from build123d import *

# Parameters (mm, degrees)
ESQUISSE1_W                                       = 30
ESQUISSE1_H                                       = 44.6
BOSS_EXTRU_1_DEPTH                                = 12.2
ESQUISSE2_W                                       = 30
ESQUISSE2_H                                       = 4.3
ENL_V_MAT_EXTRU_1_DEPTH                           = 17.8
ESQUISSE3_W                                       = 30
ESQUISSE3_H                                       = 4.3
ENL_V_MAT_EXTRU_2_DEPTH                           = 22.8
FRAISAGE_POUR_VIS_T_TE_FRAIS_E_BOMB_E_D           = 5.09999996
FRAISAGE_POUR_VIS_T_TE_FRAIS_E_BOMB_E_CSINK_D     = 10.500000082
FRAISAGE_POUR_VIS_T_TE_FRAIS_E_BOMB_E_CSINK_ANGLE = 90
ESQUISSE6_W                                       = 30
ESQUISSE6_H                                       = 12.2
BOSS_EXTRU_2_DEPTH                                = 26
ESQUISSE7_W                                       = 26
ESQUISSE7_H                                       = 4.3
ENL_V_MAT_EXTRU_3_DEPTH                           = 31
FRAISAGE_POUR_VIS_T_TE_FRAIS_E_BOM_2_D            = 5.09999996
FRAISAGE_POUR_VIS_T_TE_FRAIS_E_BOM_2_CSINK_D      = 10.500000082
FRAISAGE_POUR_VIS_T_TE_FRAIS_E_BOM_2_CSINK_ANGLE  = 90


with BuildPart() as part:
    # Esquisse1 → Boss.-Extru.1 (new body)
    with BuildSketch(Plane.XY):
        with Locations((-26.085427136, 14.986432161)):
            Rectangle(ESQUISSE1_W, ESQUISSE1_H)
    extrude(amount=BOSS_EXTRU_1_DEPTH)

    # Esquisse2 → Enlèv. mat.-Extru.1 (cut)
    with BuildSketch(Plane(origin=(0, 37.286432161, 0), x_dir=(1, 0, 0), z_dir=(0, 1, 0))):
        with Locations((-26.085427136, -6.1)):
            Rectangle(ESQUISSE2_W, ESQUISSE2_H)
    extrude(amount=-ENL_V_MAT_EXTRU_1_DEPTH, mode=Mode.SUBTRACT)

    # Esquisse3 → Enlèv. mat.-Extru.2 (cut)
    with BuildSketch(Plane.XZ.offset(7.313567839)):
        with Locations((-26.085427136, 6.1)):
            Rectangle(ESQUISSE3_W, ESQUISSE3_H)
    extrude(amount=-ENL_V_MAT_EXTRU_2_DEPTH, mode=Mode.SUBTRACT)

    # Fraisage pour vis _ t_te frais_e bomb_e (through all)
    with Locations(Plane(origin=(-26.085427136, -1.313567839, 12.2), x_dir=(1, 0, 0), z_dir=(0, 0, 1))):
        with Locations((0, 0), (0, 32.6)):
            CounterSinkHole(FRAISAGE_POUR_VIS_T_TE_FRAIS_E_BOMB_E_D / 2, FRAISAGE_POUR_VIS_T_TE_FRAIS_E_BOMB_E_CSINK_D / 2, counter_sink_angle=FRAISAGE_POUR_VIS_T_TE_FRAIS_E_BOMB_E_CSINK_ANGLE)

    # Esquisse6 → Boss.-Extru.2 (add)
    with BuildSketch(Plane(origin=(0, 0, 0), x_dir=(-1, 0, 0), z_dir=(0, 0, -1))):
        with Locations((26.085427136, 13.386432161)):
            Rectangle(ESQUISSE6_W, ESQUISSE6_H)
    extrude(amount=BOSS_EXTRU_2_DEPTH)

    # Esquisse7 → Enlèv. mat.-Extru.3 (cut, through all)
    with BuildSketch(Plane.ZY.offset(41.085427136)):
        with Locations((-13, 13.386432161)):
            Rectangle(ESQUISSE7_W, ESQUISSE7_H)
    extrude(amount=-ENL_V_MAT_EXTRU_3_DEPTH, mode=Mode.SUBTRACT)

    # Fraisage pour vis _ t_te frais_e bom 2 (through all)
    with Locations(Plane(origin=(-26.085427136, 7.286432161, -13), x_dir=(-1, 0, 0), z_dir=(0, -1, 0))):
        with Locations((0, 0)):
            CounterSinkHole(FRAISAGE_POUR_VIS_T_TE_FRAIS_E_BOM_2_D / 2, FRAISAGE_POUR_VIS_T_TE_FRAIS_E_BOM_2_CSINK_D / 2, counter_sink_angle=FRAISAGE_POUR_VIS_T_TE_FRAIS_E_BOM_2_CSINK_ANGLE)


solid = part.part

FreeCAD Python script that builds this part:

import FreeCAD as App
import Part
import Sketcher
from FreeCAD import Vector

doc = App.newDocument("Part")
body = doc.addObject("PartDesign::Body", "Body")

# Sketch on XY plane
sketch1 = body.newObject("Sketcher::SketchObject", "Sketch")
sketch1.AttachmentSupport = (doc.getObject("XY_Plane"), [""])
sketch1.MapMode = "FlatFace"
sketch1.addGeometry([
    Part.LineSegment(Vector(-41, 37, 0), Vector(-41, -7, 0)),
    Part.LineSegment(Vector(-41, -7, 0), Vector(-11, -7, 0)),
    Part.LineSegment(Vector(-11, -7, 0), Vector(-11, 37, 0)),
    Part.LineSegment(Vector(-11, 37, 0), Vector(-41, 37, 0)),
], False)
sketch1.addConstraint([
    Sketcher.Constraint("Coincident", 0, 2, 1, 1),
    Sketcher.Constraint("Coincident", 1, 2, 2, 1),
    Sketcher.Constraint("Coincident", 2, 2, 3, 1),
    Sketcher.Constraint("Coincident", 3, 2, 0, 1),
    Sketcher.Constraint("Vertical", 0),
    Sketcher.Constraint("Horizontal", 1),
    Sketcher.Constraint("Vertical", 2),
    Sketcher.Constraint("Horizontal", 3),
    Sketcher.Constraint("DistanceX", 1, 1, 1, 2, 30.0),
    Sketcher.Constraint("DistanceY", 0, 2, 0, 1, 44.6),
    Sketcher.Constraint("DistanceX", 0, 2, -1, 1, 41.085427),
    Sketcher.Constraint("DistanceY", 0, 2, -1, 1, 7.313568),
])
pad1 = body.newObject("PartDesign::Pad", "Pad")
pad1.Profile = sketch1
pad1.Length = 12.2

# Sketch on XZ plane
sketch2 = body.newObject("Sketcher::SketchObject", "Sketch001")
sketch2.AttachmentSupport = (doc.getObject("XZ_Plane"), [""])
sketch2.MapMode = "FlatFace"
sketch2.AttachmentOffset = App.Placement(Vector(0, 0, -37.286432), App.Rotation())
sketch2.addGeometry([
    Part.LineSegment(Vector(-41.1, 4, 0), Vector(-41.1, 8.2, 0)),
    Part.LineSegment(Vector(-41.1, 8.2, 0), Vector(-11.1, 8.2, 0)),
    Part.LineSegment(Vector(-11.1, 8.2, 0), Vector(-11.1, 4, 0)),
    Part.LineSegment(Vector(-11.1, 4, 0), Vector(-41.1, 4, 0)),
], False)
sketch2.addConstraint([
    Sketcher.Constraint("Coincident", 0, 2, 1, 1),
    Sketcher.Constraint("Coincident", 1, 2, 2, 1),
    Sketcher.Constraint("Coincident", 2, 2, 3, 1),
    Sketcher.Constraint("Coincident", 3, 2, 0, 1),
    Sketcher.Constraint("Vertical", 0),
    Sketcher.Constraint("Horizontal", 1),
    Sketcher.Constraint("Vertical", 2),
    Sketcher.Constraint("Horizontal", 3),
    Sketcher.Constraint("DistanceX", 1, 1, 1, 2, 30.0),
    Sketcher.Constraint("DistanceY", 0, 1, 0, 2, 4.3),
    Sketcher.Constraint("DistanceY", -1, 1, 0, 2, 8.25),
    Sketcher.Constraint("DistanceX", 0, 2, -1, 1, 41.085427),
])
pocket1 = body.newObject("PartDesign::Pocket", "Pocket")
pocket1.Profile = sketch2
pocket1.Length = 17.8
pocket1.Reversed = True

# Sketch on XZ plane
sketch3 = body.newObject("Sketcher::SketchObject", "Sketch002")
sketch3.AttachmentSupport = (doc.getObject("XZ_Plane"), [""])
sketch3.MapMode = "FlatFace"
sketch3.AttachmentOffset = App.Placement(Vector(0, 0, 7.313568), App.Rotation())
sketch3.addGeometry([
    Part.LineSegment(Vector(-41.1, 8.2, 0), Vector(-41.1, 4, 0)),
    Part.LineSegment(Vector(-41.1, 4, 0), Vector(-11.1, 4, 0)),
    Part.LineSegment(Vector(-11.1, 4, 0), Vector(-11.1, 8.2, 0)),
    Part.LineSegment(Vector(-11.1, 8.2, 0), Vector(-41.1, 8.2, 0)),
], False)
sketch3.addConstraint([
    Sketcher.Constraint("Coincident", 0, 2, 1, 1),
    Sketcher.Constraint("Coincident", 1, 2, 2, 1),
    Sketcher.Constraint("Coincident", 2, 2, 3, 1),
    Sketcher.Constraint("Coincident", 3, 2, 0, 1),
    Sketcher.Constraint("Vertical", 0),
    Sketcher.Constraint("Horizontal", 1),
    Sketcher.Constraint("Vertical", 2),
    Sketcher.Constraint("Horizontal", 3),
    Sketcher.Constraint("DistanceX", 1, 1, 1, 2, 30.0),
    Sketcher.Constraint("DistanceY", 0, 2, 0, 1, 4.3),
    Sketcher.Constraint("DistanceY", -1, 1, 0, 2, 3.95),
    Sketcher.Constraint("DistanceX", 0, 2, -1, 1, 41.085427),
])
pocket2 = body.newObject("PartDesign::Pocket", "Pocket001")
pocket2.Profile = sketch3
pocket2.Length = 22.8

# Sketch on XY plane
sketch4 = body.newObject("Sketcher::SketchObject", "Sketch003")
sketch4.AttachmentSupport = (doc.getObject("XY_Plane"), [""])
sketch4.MapMode = "FlatFace"
sketch4.AttachmentOffset = App.Placement(Vector(0, 0, 12.2), App.Rotation())
sketch4.addGeometry([
    Part.Circle(Vector(-26.1, -1.3, 0), Vector(0, 0, 1), 2.5),
    Part.Circle(Vector(-26.1, 31.3, 0), Vector(0, 0, 1), 2.5),
], False)
sketch4.addConstraint([
    Sketcher.Constraint("Equal", 0, 1),
    Sketcher.Constraint("Vertical", 0, 3, 1, 3),
    Sketcher.Constraint("Diameter", 0, 5.1),
    Sketcher.Constraint("DistanceY", 0, 3, 1, 3, 32.6),
    Sketcher.Constraint("DistanceX", 0, 3, -1, 1, 26.085427),
    Sketcher.Constraint("DistanceY", 0, 3, -1, 1, 1.313568),
])
doc.recompute()
hole = body.newObject("PartDesign::Hole", "Hole")
hole.Profile = sketch4
hole.ThreadType = "None"
hole.Diameter = 5.1
hole.DepthType = "ThroughAll"
hole.HoleCutType = "Countersink"
hole.HoleCutDiameter = 10.5
hole.HoleCutCountersinkAngle = 90

# Sketch on XY plane
sketch5 = body.newObject("Sketcher::SketchObject", "Sketch004")
sketch5.AttachmentSupport = (doc.getObject("XY_Plane"), [""])
sketch5.MapMode = "FlatFace"
sketch5.addGeometry([
    Part.LineSegment(Vector(-11, 19, 0), Vector(-11, 7, 0)),
    Part.LineSegment(Vector(-11, 7, 0), Vector(-41, 7, 0)),
    Part.LineSegment(Vector(-41, 7, 0), Vector(-41, 19, 0)),
    Part.LineSegment(Vector(-41, 19, 0), Vector(-11, 19, 0)),
], False)
sketch5.addConstraint([
    Sketcher.Constraint("Coincident", 0, 2, 1, 1),
    Sketcher.Constraint("Coincident", 1, 2, 2, 1),
    Sketcher.Constraint("Coincident", 2, 2, 3, 1),
    Sketcher.Constraint("Coincident", 3, 2, 0, 1),
    Sketcher.Constraint("Vertical", 0),
    Sketcher.Constraint("Horizontal", 1),
    Sketcher.Constraint("Vertical", 2),
    Sketcher.Constraint("Horizontal", 3),
    Sketcher.Constraint("DistanceX", 1, 2, 1, 1, 30.0),
    Sketcher.Constraint("DistanceY", 0, 2, 0, 1, 12.2),
    Sketcher.Constraint("DistanceX", 0, 2, -1, 1, 11.085427),
    Sketcher.Constraint("DistanceY", -1, 1, 0, 2, 7.286432),
])
pad2 = body.newObject("PartDesign::Pad", "Pad001")
pad2.Profile = sketch5
pad2.Length = 26
pad2.Reversed = True

# Sketch on YZ plane
sketch6 = body.newObject("Sketcher::SketchObject", "Sketch005")
sketch6.AttachmentSupport = (doc.getObject("YZ_Plane"), [""])
sketch6.MapMode = "FlatFace"
sketch6.AttachmentOffset = App.Placement(Vector(0, 0, -41.085427), App.Rotation())
sketch6.addGeometry([
    Part.LineSegment(Vector(15.5, -26, 0), Vector(11.2, -26, 0)),
    Part.LineSegment(Vector(11.2, -26, 0), Vector(11.2, 0, 0)),
    Part.LineSegment(Vector(11.2, 0, 0), Vector(15.5, 0, 0)),
    Part.LineSegment(Vector(15.5, 0, 0), Vector(15.5, -26, 0)),
], False)
sketch6.addConstraint([
    Sketcher.Constraint("Coincident", 0, 2, 1, 1),
    Sketcher.Constraint("Coincident", 1, 2, 2, 1),
    Sketcher.Constraint("Coincident", 2, 2, 3, 1),
    Sketcher.Constraint("Coincident", 3, 2, 0, 1),
    Sketcher.Constraint("Horizontal", 0),
    Sketcher.Constraint("Vertical", 1),
    Sketcher.Constraint("Horizontal", 2),
    Sketcher.Constraint("Vertical", 3),
    Sketcher.Constraint("PointOnObject", 1, 2, -1),
    Sketcher.Constraint("DistanceY", 1, 1, 1, 2, 26.0),
    Sketcher.Constraint("DistanceX", 0, 2, 0, 1, 4.3),
    Sketcher.Constraint("DistanceX", -1, 1, 0, 2, 11.236432),
])
pocket3 = body.newObject("PartDesign::Pocket", "Pocket002")
pocket3.Profile = sketch6
pocket3.Type = "ThroughAll"
pocket3.Reversed = True

# Sketch on XZ plane
sketch7 = body.newObject("Sketcher::SketchObject", "Sketch006")
sketch7.AttachmentSupport = (doc.getObject("XZ_Plane"), [""])
sketch7.MapMode = "FlatFace"
sketch7.AttachmentOffset = App.Placement(Vector(0, 0, -7.286432), App.Rotation())
sketch7.addGeometry(Part.Circle(Vector(-26.1, -13, 0), Vector(0, 0, 1), 2.5), False)
sketch7.addConstraint([
    Sketcher.Constraint("Diameter", 0, 5.1),
    Sketcher.Constraint("DistanceY", 0, 3, -1, 1, 13.0),
    Sketcher.Constraint("DistanceX", 0, 3, -1, 1, 26.085427),
])
doc.recompute()
hole2 = body.newObject("PartDesign::Hole", "Hole001")
hole2.Profile = sketch7
hole2.ThreadType = "None"
hole2.Diameter = 5.1
hole2.DepthType = "ThroughAll"
hole2.HoleCutType = "Countersink"
hole2.HoleCutDiameter = 10.5
hole2.HoleCutCountersinkAngle = 90

doc.recompute()
